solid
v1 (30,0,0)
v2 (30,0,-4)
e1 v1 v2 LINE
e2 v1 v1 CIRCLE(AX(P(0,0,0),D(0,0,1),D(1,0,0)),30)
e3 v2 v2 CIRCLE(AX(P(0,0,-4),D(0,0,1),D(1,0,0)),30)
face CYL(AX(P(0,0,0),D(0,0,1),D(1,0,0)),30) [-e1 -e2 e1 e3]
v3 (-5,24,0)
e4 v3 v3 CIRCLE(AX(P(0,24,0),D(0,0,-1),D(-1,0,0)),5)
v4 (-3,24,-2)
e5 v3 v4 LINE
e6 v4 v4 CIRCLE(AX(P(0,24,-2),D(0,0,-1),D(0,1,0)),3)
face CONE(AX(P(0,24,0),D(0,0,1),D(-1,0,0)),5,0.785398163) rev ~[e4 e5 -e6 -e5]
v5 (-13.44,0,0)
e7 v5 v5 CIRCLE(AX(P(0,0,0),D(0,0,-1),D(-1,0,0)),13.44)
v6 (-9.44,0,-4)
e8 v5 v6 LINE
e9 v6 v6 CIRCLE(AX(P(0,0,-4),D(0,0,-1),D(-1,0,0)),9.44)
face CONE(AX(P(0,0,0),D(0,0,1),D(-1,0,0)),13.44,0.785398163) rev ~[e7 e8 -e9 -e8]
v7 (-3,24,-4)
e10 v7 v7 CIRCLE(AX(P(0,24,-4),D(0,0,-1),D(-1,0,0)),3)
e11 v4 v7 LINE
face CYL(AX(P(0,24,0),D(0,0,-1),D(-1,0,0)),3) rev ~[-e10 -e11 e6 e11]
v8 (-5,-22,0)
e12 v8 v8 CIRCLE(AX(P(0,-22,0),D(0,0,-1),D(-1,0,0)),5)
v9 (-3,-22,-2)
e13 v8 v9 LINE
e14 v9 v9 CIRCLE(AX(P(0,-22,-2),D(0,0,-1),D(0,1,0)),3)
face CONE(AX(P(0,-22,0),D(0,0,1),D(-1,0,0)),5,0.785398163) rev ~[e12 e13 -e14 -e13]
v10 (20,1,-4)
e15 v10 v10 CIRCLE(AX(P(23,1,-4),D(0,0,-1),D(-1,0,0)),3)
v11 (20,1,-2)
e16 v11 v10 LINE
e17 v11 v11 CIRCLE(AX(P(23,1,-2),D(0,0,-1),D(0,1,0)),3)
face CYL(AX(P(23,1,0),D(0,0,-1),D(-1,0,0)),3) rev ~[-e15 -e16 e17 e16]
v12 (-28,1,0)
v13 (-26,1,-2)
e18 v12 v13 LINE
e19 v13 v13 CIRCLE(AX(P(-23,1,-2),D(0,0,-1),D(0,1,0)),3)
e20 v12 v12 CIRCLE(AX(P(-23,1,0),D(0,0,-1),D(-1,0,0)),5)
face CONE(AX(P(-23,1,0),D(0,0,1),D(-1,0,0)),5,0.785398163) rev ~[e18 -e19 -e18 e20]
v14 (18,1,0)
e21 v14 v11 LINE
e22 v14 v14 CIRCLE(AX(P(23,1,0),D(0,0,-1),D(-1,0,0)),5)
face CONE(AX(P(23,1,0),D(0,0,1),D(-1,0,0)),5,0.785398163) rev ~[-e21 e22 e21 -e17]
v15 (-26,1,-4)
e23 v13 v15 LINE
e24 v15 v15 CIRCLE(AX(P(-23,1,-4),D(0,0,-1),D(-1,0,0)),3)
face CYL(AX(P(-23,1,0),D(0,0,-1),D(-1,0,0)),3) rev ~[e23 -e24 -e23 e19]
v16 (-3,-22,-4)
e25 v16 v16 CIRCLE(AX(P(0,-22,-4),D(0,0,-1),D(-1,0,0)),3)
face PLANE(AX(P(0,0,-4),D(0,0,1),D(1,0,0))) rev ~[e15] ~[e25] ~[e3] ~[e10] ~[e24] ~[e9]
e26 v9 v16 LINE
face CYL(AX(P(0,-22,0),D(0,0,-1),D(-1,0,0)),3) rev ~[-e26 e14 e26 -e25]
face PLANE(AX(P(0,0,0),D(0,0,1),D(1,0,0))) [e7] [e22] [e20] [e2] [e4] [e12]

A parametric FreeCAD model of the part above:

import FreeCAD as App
import Part
import Sketcher
from FreeCAD import Vector
Q = App.Units.Quantity

doc = App.newDocument("Part")
params = doc.addObject("Spreadsheet::Sheet", "Params")
for row, (alias, value) in enumerate([
    ("sketch1_diameter", "60 mm"),
    ("pad1_length", "4 mm"),
    ("sketch2_diameter", "13.2 mm"),
    ("hole_diameter", "13.2 mm"),
    ("hole_depth", "12 mm"),
    ("hole_csink_diameter", "26.88 mm"),
    ("sketch3_diameter", "6 mm"),
    ("hole2_diameter", "6 mm"),
    ("hole2_depth", "12 mm"),
    ("hole2_csink_diameter", "10 mm"),
], start=1):
    params.set(f"A{row}", alias)
    params.set(f"B{row}", "=" + value)
    params.setAlias(f"B{row}", alias)

body = doc.addObject("PartDesign::Body", "Body")

# Sketch on XY plane
sketch1 = doc.addObject("Sketcher::SketchObject", "Sketch")
body.addObject(sketch1)
sketch1.AttachmentSupport = (doc.XY_Plane, [""])
sketch1.MapMode = "FlatFace"
sketch1.addGeometry(Part.Circle(Vector(0, 0, 0), Vector(0, 0, 1), 30), False)
sketch1.addConstraint([
    Sketcher.Constraint("Coincident", 0, 3, -1, 1),
    Sketcher.Constraint("Diameter", 0, Q("60 mm")),
])
sketch1.setExpression("Constraints[1]", "Params.sketch1_diameter")
pad1 = doc.addObject("PartDesign::Pad", "Pad")
body.addObject(pad1)
pad1.Profile = sketch1
pad1.setExpression("Length", "Params.pad1_length")
pad1.Reversed = True

# Sketch on XY plane
sketch2 = doc.addObject("Sketcher::SketchObject", "Sketch001")
body.addObject(sketch2)
sketch2.AttachmentSupport = (doc.XY_Plane, [""])
sketch2.MapMode = "FlatFace"
sketch2.addGeometry(Part.Circle(Vector(0, 0, 0), Vector(0, 0, 1), 6.6), False)
sketch2.addConstraint([
    Sketcher.Constraint("Coincident", 0, 3, -1, 1),
    Sketcher.Constraint("Diameter", 0, Q("13.2 mm")),
])
sketch2.setExpression("Constraints[1]", "Params.sketch2_diameter")
doc.recompute()
hole = doc.addObject("PartDesign::Hole", "Hole")
body.addObject(hole)
hole.Profile = sketch2
hole.ThreadType = "None"
hole.setExpression("Diameter", "Params.hole_diameter")
hole.DepthType = "Dimension"
hole.setExpression("Depth", "Params.hole_depth")
hole.DrillPoint = "Angled"
hole.DrillPointAngle = 118
hole.HoleCutType = "Countersink"
hole.setExpression("HoleCutDiameter", "Params.hole_csink_diameter")
hole.HoleCutCountersinkAngle = 90

# Sketch on XY plane
sketch3 = doc.addObject("Sketcher::SketchObject", "Sketch002")
body.addObject(sketch3)
sketch3.AttachmentSupport = (doc.XY_Plane, [""])
sketch3.MapMode = "FlatFace"
sketch3.addGeometry([
    Part.Circle(Vector(-23, 1, 0), Vector(0, 0, 1), 3),
    Part.Circle(Vector(0, 24, 0), Vector(0, 0, 1), 3),
    Part.Circle(Vector(23, 1, 0), Vector(0, 0, 1), 3),
    Part.Circle(Vector(0, -22, 0), Vector(0, 0, 1), 3),
], False)
sketch3.addConstraint([
    Sketcher.Constraint("Equal", 0, 1),
    Sketcher.Constraint("Equal", 1, 2),
    Sketcher.Constraint("Equal", 2, 3),
    Sketcher.Constraint("Symmetric", 0, 3, 2, 3, -2),
    Sketcher.Constraint("PointOnObject", 1, 3, -2),
    Sketcher.Constraint("PointOnObject", 3, 3, -2),
    Sketcher.Constraint("Diameter", 0, Q("6 mm")),
    Sketcher.Constraint("DistanceX", 0, 3, -1, 1, Q("23 mm")),
    Sketcher.Constraint("DistanceY", -1, 1, 0, 3, Q("1 mm")),
    Sketcher.Constraint("DistanceY", -1, 1, 1, 3, Q("24 mm")),
    Sketcher.Constraint("DistanceY", 3, 3, -1, 1, Q("22 mm")),
])
sketch3.setExpression("Constraints[6]", "Params.sketch3_diameter")
doc.recompute()
hole2 = doc.addObject("PartDesign::Hole", "Hole001")
body.addObject(hole2)
hole2.Profile = sketch3
hole2.ThreadType = "None"
hole2.setExpression("Diameter", "Params.hole2_diameter")
hole2.DepthType = "Dimension"
hole2.setExpression("Depth", "Params.hole2_depth")
hole2.DrillPoint = "Angled"
hole2.DrillPointAngle = 118
hole2.HoleCutType = "Countersink"
hole2.setExpression("HoleCutDiameter", "Params.hole2_csink_diameter")
hole2.HoleCutCountersinkAngle = 90

doc.recompute()
